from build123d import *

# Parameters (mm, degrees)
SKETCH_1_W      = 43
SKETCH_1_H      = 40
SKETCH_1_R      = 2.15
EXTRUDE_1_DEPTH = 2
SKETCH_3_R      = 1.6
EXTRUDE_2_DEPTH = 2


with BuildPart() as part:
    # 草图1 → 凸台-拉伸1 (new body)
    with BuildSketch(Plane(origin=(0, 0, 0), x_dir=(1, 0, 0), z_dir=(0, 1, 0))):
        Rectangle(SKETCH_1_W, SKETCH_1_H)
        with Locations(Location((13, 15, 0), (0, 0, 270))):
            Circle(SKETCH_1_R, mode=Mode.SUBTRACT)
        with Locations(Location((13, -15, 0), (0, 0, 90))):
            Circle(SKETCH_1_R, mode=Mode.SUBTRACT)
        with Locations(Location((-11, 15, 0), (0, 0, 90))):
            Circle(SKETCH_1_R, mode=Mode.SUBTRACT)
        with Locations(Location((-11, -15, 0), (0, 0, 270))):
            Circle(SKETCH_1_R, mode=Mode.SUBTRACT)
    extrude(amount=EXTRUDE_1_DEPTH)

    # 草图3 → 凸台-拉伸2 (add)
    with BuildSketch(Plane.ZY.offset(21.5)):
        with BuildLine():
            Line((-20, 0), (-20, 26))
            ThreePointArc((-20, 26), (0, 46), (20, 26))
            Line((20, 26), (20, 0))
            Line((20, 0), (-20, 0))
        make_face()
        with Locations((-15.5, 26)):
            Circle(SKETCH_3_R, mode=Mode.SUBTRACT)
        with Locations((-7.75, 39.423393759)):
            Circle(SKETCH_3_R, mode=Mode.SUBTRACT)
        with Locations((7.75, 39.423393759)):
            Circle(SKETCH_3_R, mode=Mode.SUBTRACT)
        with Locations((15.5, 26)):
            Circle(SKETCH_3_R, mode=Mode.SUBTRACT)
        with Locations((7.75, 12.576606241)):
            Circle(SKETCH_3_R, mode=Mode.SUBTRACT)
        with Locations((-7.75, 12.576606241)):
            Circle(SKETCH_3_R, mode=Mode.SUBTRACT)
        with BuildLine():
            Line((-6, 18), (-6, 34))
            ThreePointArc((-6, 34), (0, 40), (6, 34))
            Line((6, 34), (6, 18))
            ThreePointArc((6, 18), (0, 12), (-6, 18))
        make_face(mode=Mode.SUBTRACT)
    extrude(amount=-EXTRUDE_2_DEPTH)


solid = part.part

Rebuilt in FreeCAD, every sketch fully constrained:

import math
import FreeCAD as App
import Part
import Sketcher

V = App.Vector

doc = App.newDocument("Part")
body = doc.addObject("PartDesign::Body", "Body")

# Sketch on XZ plane
sketch1 = body.newObject("Sketcher::SketchObject", "Sketch")
sketch1.AttachmentSupport = (doc.getObject("XZ_Plane"), [""])
sketch1.MapMode = "FlatFace"
sketch1.addGeometry([
    Part.LineSegment(V(-21.5, -20, 0), V(-21.5, 20, 0)),  # 0
    Part.LineSegment(V(-21.5, 20, 0), V(21.5, 20, 0)),  # 1
    Part.LineSegment(V(21.5, 20, 0), V(21.5, -20, 0)),  # 2
    Part.LineSegment(V(21.5, -20, 0), V(-21.5, -20, 0)),  # 3
    Part.Circle(V(-11, 15, 0), V(0, 0, 1), 2.15),  # 4
    Part.Circle(V(13, 15, 0), V(0, 0, 1), 2.15),  # 5
    Part.Circle(V(-11, -15, 0), V(0, 0, 1), 2.15),  # 6
    Part.Circle(V(13, -15, 0), V(0, 0, 1), 2.15),  # 7
], False)
sketch1.addConstraint([
    Sketcher.Constraint("Coincident", 0, 2, 1, 1),
    Sketcher.Constraint("Coincident", 1, 2, 2, 1),
    Sketcher.Constraint("Coincident", 2, 2, 3, 1),
    Sketcher.Constraint("Coincident", 3, 2, 0, 1),
    Sketcher.Constraint("Vertical", 0),
    Sketcher.Constraint("Horizontal", 1),
    Sketcher.Constraint("Vertical", 2),
    Sketcher.Constraint("Horizontal", 3),
    Sketcher.Constraint("Equal", 4, 5),
    Sketcher.Constraint("Equal", 5, 6),
    Sketcher.Constraint("Equal", 6, 7),
    Sketcher.Constraint("Symmetric", 0, 2, 2, 2, -1, 1),
    Sketcher.Constraint("Symmetric", 4, 3, 6, 3, -1),
    Sketcher.Constraint("Symmetric", 5, 3, 7, 3, -1),
    Sketcher.Constraint("Horizontal", 4, 3, 5, 3),
    Sketcher.Constraint("Diameter", 4, 4.3),
    Sketcher.Constraint("DistanceX", 1, 1, 1, 2, 43.0),
    Sketcher.Constraint("DistanceY", 0, 1, 0, 2, 40.0),
    Sketcher.Constraint("DistanceX", 4, 3, -1, 1, 11.0),
    Sketcher.Constraint("DistanceY", -1, 1, 4, 3, 15.0),
    Sketcher.Constraint("DistanceX", -1, 1, 5, 3, 13.0),
])
pad1 = body.newObject("PartDesign::Pad", "Pad")
pad1.Profile = sketch1
pad1.Length = 2
pad1.Reversed = True

# Sketch on YZ plane
sketch2 = body.newObject("Sketcher::SketchObject", "Sketch001")
sketch2.AttachmentSupport = (doc.getObject("YZ_Plane"), [""])
sketch2.MapMode = "FlatFace"
sketch2.AttachmentOffset = App.Placement(V(0, 0, -21.5), App.Rotation())
sketch2.addGeometry([
    Part.LineSegment(V(26, -20, 0), V(0, -20, 0)),  # 0
    Part.LineSegment(V(0, -20, 0), V(0, 20, 0)),  # 1
    Part.LineSegment(V(0, 20, 0), V(26, 20, 0)),  # 2
    Part.ArcOfCircle(Part.Circle(V(26, 0, 0), V(0, 0, 1), 20), math.radians(-90), math.radians(90)),  # 3
    Part.Circle(V(12.576606, 7.75, 0), V(0, 0, 1), 1.6),  # 4
    Part.Circle(V(12.576606, -7.75, 0), V(0, 0, 1), 1.6),  # 5
    Part.Circle(V(26, 15.5, 0), V(0, 0, 1), 1.6),  # 6
    Part.Circle(V(39.423394, 7.75, 0), V(0, 0, 1), 1.6),  # 7
    Part.LineSegment(V(18, -6, 0), V(34, -6, 0)),  # 8
    Part.ArcOfCircle(Part.Circle(V(34, 0, 0), V(0, 0, 1), 6), math.radians(-90), math.radians(90)),  # 9
    Part.LineSegment(V(34, 6, 0), V(18, 6, 0)),  # 10
    Part.ArcOfCircle(Part.Circle(V(18, 0, 0), V(0, 0, 1), 6), math.radians(90), math.radians(270)),  # 11
    Part.Circle(V(26, -15.5, 0), V(0, 0, 1), 1.6),  # 12
    Part.Circle(V(39.423394, -7.75, 0), V(0, 0, 1), 1.6),  # 13
], False)
sketch2.addConstraint([
    Sketcher.Constraint("Coincident", 0, 2, 1, 1),
    Sketcher.Constraint("Coincident", 1, 2, 2, 1),
    Sketcher.Constraint("Tangent", 2, 2, 3, 2),
    Sketcher.Constraint("Tangent", 3, 1, 0, 1),
    Sketcher.Constraint("Tangent", 8, 2, 9, 1),
    Sketcher.Constraint("Tangent", 9, 2, 10, 1),
    Sketcher.Constraint("Tangent", 10, 2, 11, 1),
    Sketcher.Constraint("Tangent", 11, 2, 8, 1),
    Sketcher.Constraint("Horizontal", 0),
    Sketcher.Constraint("Vertical", 1),
    Sketcher.Constraint("Horizontal", 2),
    Sketcher.Constraint("Horizontal", 8),
    Sketcher.Constraint("Horizontal", 10),
    Sketcher.Constraint("Equal", 4, 5),
    Sketcher.Constraint("Equal", 5, 6),
    Sketcher.Constraint("Equal", 6, 7),
    Sketcher.Constraint("Equal", 7, 12),
    Sketcher.Constraint("Equal", 12, 13),
    Sketcher.Constraint("Symmetric", 0, 2, 1, 2, -1, 1),
    Sketcher.Constraint("Symmetric", 4, 3, 5, 3, -1),
    Sketcher.Constraint("Symmetric", 6, 3, 12, 3, -1),
    Sketcher.Constraint("Symmetric", 7, 3, 13, 3, -1),
    Sketcher.Constraint("PointOnObject", 9, 3, -1),
    Sketcher.Constraint("Horizontal", 4, 3, 7, 3),
    Sketcher.Constraint("Vertical", 3, 3, 6, 3),
    Sketcher.Constraint("Radius", 3, 20.0),
    Sketcher.Constraint("Radius", 9, 6.0),
    Sketcher.Constraint("Diameter", 4, 3.2),
    Sketcher.Constraint("DistanceX", 0, 2, 0, 1, 26.0),
    Sketcher.Constraint("DistanceX", 8, 1, 8, 2, 16.0),
    Sketcher.Constraint("DistanceX", -1, 1, 9, 3, 34.0),
    Sketcher.Constraint("DistanceY", -1, 1, 6, 3, 15.5),
    Sketcher.Constraint("DistanceY", 5, 3, 4, 3, 15.5),
    Sketcher.Constraint("DistanceX", -1, 1, 4, 3, 12.576606),
    Sketcher.Constraint("DistanceX", -1, 1, 7, 3, 39.423394),
])
pad2 = body.newObject("PartDesign::Pad", "Pad001")
pad2.Profile = sketch2
pad2.Length = 2

doc.recompute()
